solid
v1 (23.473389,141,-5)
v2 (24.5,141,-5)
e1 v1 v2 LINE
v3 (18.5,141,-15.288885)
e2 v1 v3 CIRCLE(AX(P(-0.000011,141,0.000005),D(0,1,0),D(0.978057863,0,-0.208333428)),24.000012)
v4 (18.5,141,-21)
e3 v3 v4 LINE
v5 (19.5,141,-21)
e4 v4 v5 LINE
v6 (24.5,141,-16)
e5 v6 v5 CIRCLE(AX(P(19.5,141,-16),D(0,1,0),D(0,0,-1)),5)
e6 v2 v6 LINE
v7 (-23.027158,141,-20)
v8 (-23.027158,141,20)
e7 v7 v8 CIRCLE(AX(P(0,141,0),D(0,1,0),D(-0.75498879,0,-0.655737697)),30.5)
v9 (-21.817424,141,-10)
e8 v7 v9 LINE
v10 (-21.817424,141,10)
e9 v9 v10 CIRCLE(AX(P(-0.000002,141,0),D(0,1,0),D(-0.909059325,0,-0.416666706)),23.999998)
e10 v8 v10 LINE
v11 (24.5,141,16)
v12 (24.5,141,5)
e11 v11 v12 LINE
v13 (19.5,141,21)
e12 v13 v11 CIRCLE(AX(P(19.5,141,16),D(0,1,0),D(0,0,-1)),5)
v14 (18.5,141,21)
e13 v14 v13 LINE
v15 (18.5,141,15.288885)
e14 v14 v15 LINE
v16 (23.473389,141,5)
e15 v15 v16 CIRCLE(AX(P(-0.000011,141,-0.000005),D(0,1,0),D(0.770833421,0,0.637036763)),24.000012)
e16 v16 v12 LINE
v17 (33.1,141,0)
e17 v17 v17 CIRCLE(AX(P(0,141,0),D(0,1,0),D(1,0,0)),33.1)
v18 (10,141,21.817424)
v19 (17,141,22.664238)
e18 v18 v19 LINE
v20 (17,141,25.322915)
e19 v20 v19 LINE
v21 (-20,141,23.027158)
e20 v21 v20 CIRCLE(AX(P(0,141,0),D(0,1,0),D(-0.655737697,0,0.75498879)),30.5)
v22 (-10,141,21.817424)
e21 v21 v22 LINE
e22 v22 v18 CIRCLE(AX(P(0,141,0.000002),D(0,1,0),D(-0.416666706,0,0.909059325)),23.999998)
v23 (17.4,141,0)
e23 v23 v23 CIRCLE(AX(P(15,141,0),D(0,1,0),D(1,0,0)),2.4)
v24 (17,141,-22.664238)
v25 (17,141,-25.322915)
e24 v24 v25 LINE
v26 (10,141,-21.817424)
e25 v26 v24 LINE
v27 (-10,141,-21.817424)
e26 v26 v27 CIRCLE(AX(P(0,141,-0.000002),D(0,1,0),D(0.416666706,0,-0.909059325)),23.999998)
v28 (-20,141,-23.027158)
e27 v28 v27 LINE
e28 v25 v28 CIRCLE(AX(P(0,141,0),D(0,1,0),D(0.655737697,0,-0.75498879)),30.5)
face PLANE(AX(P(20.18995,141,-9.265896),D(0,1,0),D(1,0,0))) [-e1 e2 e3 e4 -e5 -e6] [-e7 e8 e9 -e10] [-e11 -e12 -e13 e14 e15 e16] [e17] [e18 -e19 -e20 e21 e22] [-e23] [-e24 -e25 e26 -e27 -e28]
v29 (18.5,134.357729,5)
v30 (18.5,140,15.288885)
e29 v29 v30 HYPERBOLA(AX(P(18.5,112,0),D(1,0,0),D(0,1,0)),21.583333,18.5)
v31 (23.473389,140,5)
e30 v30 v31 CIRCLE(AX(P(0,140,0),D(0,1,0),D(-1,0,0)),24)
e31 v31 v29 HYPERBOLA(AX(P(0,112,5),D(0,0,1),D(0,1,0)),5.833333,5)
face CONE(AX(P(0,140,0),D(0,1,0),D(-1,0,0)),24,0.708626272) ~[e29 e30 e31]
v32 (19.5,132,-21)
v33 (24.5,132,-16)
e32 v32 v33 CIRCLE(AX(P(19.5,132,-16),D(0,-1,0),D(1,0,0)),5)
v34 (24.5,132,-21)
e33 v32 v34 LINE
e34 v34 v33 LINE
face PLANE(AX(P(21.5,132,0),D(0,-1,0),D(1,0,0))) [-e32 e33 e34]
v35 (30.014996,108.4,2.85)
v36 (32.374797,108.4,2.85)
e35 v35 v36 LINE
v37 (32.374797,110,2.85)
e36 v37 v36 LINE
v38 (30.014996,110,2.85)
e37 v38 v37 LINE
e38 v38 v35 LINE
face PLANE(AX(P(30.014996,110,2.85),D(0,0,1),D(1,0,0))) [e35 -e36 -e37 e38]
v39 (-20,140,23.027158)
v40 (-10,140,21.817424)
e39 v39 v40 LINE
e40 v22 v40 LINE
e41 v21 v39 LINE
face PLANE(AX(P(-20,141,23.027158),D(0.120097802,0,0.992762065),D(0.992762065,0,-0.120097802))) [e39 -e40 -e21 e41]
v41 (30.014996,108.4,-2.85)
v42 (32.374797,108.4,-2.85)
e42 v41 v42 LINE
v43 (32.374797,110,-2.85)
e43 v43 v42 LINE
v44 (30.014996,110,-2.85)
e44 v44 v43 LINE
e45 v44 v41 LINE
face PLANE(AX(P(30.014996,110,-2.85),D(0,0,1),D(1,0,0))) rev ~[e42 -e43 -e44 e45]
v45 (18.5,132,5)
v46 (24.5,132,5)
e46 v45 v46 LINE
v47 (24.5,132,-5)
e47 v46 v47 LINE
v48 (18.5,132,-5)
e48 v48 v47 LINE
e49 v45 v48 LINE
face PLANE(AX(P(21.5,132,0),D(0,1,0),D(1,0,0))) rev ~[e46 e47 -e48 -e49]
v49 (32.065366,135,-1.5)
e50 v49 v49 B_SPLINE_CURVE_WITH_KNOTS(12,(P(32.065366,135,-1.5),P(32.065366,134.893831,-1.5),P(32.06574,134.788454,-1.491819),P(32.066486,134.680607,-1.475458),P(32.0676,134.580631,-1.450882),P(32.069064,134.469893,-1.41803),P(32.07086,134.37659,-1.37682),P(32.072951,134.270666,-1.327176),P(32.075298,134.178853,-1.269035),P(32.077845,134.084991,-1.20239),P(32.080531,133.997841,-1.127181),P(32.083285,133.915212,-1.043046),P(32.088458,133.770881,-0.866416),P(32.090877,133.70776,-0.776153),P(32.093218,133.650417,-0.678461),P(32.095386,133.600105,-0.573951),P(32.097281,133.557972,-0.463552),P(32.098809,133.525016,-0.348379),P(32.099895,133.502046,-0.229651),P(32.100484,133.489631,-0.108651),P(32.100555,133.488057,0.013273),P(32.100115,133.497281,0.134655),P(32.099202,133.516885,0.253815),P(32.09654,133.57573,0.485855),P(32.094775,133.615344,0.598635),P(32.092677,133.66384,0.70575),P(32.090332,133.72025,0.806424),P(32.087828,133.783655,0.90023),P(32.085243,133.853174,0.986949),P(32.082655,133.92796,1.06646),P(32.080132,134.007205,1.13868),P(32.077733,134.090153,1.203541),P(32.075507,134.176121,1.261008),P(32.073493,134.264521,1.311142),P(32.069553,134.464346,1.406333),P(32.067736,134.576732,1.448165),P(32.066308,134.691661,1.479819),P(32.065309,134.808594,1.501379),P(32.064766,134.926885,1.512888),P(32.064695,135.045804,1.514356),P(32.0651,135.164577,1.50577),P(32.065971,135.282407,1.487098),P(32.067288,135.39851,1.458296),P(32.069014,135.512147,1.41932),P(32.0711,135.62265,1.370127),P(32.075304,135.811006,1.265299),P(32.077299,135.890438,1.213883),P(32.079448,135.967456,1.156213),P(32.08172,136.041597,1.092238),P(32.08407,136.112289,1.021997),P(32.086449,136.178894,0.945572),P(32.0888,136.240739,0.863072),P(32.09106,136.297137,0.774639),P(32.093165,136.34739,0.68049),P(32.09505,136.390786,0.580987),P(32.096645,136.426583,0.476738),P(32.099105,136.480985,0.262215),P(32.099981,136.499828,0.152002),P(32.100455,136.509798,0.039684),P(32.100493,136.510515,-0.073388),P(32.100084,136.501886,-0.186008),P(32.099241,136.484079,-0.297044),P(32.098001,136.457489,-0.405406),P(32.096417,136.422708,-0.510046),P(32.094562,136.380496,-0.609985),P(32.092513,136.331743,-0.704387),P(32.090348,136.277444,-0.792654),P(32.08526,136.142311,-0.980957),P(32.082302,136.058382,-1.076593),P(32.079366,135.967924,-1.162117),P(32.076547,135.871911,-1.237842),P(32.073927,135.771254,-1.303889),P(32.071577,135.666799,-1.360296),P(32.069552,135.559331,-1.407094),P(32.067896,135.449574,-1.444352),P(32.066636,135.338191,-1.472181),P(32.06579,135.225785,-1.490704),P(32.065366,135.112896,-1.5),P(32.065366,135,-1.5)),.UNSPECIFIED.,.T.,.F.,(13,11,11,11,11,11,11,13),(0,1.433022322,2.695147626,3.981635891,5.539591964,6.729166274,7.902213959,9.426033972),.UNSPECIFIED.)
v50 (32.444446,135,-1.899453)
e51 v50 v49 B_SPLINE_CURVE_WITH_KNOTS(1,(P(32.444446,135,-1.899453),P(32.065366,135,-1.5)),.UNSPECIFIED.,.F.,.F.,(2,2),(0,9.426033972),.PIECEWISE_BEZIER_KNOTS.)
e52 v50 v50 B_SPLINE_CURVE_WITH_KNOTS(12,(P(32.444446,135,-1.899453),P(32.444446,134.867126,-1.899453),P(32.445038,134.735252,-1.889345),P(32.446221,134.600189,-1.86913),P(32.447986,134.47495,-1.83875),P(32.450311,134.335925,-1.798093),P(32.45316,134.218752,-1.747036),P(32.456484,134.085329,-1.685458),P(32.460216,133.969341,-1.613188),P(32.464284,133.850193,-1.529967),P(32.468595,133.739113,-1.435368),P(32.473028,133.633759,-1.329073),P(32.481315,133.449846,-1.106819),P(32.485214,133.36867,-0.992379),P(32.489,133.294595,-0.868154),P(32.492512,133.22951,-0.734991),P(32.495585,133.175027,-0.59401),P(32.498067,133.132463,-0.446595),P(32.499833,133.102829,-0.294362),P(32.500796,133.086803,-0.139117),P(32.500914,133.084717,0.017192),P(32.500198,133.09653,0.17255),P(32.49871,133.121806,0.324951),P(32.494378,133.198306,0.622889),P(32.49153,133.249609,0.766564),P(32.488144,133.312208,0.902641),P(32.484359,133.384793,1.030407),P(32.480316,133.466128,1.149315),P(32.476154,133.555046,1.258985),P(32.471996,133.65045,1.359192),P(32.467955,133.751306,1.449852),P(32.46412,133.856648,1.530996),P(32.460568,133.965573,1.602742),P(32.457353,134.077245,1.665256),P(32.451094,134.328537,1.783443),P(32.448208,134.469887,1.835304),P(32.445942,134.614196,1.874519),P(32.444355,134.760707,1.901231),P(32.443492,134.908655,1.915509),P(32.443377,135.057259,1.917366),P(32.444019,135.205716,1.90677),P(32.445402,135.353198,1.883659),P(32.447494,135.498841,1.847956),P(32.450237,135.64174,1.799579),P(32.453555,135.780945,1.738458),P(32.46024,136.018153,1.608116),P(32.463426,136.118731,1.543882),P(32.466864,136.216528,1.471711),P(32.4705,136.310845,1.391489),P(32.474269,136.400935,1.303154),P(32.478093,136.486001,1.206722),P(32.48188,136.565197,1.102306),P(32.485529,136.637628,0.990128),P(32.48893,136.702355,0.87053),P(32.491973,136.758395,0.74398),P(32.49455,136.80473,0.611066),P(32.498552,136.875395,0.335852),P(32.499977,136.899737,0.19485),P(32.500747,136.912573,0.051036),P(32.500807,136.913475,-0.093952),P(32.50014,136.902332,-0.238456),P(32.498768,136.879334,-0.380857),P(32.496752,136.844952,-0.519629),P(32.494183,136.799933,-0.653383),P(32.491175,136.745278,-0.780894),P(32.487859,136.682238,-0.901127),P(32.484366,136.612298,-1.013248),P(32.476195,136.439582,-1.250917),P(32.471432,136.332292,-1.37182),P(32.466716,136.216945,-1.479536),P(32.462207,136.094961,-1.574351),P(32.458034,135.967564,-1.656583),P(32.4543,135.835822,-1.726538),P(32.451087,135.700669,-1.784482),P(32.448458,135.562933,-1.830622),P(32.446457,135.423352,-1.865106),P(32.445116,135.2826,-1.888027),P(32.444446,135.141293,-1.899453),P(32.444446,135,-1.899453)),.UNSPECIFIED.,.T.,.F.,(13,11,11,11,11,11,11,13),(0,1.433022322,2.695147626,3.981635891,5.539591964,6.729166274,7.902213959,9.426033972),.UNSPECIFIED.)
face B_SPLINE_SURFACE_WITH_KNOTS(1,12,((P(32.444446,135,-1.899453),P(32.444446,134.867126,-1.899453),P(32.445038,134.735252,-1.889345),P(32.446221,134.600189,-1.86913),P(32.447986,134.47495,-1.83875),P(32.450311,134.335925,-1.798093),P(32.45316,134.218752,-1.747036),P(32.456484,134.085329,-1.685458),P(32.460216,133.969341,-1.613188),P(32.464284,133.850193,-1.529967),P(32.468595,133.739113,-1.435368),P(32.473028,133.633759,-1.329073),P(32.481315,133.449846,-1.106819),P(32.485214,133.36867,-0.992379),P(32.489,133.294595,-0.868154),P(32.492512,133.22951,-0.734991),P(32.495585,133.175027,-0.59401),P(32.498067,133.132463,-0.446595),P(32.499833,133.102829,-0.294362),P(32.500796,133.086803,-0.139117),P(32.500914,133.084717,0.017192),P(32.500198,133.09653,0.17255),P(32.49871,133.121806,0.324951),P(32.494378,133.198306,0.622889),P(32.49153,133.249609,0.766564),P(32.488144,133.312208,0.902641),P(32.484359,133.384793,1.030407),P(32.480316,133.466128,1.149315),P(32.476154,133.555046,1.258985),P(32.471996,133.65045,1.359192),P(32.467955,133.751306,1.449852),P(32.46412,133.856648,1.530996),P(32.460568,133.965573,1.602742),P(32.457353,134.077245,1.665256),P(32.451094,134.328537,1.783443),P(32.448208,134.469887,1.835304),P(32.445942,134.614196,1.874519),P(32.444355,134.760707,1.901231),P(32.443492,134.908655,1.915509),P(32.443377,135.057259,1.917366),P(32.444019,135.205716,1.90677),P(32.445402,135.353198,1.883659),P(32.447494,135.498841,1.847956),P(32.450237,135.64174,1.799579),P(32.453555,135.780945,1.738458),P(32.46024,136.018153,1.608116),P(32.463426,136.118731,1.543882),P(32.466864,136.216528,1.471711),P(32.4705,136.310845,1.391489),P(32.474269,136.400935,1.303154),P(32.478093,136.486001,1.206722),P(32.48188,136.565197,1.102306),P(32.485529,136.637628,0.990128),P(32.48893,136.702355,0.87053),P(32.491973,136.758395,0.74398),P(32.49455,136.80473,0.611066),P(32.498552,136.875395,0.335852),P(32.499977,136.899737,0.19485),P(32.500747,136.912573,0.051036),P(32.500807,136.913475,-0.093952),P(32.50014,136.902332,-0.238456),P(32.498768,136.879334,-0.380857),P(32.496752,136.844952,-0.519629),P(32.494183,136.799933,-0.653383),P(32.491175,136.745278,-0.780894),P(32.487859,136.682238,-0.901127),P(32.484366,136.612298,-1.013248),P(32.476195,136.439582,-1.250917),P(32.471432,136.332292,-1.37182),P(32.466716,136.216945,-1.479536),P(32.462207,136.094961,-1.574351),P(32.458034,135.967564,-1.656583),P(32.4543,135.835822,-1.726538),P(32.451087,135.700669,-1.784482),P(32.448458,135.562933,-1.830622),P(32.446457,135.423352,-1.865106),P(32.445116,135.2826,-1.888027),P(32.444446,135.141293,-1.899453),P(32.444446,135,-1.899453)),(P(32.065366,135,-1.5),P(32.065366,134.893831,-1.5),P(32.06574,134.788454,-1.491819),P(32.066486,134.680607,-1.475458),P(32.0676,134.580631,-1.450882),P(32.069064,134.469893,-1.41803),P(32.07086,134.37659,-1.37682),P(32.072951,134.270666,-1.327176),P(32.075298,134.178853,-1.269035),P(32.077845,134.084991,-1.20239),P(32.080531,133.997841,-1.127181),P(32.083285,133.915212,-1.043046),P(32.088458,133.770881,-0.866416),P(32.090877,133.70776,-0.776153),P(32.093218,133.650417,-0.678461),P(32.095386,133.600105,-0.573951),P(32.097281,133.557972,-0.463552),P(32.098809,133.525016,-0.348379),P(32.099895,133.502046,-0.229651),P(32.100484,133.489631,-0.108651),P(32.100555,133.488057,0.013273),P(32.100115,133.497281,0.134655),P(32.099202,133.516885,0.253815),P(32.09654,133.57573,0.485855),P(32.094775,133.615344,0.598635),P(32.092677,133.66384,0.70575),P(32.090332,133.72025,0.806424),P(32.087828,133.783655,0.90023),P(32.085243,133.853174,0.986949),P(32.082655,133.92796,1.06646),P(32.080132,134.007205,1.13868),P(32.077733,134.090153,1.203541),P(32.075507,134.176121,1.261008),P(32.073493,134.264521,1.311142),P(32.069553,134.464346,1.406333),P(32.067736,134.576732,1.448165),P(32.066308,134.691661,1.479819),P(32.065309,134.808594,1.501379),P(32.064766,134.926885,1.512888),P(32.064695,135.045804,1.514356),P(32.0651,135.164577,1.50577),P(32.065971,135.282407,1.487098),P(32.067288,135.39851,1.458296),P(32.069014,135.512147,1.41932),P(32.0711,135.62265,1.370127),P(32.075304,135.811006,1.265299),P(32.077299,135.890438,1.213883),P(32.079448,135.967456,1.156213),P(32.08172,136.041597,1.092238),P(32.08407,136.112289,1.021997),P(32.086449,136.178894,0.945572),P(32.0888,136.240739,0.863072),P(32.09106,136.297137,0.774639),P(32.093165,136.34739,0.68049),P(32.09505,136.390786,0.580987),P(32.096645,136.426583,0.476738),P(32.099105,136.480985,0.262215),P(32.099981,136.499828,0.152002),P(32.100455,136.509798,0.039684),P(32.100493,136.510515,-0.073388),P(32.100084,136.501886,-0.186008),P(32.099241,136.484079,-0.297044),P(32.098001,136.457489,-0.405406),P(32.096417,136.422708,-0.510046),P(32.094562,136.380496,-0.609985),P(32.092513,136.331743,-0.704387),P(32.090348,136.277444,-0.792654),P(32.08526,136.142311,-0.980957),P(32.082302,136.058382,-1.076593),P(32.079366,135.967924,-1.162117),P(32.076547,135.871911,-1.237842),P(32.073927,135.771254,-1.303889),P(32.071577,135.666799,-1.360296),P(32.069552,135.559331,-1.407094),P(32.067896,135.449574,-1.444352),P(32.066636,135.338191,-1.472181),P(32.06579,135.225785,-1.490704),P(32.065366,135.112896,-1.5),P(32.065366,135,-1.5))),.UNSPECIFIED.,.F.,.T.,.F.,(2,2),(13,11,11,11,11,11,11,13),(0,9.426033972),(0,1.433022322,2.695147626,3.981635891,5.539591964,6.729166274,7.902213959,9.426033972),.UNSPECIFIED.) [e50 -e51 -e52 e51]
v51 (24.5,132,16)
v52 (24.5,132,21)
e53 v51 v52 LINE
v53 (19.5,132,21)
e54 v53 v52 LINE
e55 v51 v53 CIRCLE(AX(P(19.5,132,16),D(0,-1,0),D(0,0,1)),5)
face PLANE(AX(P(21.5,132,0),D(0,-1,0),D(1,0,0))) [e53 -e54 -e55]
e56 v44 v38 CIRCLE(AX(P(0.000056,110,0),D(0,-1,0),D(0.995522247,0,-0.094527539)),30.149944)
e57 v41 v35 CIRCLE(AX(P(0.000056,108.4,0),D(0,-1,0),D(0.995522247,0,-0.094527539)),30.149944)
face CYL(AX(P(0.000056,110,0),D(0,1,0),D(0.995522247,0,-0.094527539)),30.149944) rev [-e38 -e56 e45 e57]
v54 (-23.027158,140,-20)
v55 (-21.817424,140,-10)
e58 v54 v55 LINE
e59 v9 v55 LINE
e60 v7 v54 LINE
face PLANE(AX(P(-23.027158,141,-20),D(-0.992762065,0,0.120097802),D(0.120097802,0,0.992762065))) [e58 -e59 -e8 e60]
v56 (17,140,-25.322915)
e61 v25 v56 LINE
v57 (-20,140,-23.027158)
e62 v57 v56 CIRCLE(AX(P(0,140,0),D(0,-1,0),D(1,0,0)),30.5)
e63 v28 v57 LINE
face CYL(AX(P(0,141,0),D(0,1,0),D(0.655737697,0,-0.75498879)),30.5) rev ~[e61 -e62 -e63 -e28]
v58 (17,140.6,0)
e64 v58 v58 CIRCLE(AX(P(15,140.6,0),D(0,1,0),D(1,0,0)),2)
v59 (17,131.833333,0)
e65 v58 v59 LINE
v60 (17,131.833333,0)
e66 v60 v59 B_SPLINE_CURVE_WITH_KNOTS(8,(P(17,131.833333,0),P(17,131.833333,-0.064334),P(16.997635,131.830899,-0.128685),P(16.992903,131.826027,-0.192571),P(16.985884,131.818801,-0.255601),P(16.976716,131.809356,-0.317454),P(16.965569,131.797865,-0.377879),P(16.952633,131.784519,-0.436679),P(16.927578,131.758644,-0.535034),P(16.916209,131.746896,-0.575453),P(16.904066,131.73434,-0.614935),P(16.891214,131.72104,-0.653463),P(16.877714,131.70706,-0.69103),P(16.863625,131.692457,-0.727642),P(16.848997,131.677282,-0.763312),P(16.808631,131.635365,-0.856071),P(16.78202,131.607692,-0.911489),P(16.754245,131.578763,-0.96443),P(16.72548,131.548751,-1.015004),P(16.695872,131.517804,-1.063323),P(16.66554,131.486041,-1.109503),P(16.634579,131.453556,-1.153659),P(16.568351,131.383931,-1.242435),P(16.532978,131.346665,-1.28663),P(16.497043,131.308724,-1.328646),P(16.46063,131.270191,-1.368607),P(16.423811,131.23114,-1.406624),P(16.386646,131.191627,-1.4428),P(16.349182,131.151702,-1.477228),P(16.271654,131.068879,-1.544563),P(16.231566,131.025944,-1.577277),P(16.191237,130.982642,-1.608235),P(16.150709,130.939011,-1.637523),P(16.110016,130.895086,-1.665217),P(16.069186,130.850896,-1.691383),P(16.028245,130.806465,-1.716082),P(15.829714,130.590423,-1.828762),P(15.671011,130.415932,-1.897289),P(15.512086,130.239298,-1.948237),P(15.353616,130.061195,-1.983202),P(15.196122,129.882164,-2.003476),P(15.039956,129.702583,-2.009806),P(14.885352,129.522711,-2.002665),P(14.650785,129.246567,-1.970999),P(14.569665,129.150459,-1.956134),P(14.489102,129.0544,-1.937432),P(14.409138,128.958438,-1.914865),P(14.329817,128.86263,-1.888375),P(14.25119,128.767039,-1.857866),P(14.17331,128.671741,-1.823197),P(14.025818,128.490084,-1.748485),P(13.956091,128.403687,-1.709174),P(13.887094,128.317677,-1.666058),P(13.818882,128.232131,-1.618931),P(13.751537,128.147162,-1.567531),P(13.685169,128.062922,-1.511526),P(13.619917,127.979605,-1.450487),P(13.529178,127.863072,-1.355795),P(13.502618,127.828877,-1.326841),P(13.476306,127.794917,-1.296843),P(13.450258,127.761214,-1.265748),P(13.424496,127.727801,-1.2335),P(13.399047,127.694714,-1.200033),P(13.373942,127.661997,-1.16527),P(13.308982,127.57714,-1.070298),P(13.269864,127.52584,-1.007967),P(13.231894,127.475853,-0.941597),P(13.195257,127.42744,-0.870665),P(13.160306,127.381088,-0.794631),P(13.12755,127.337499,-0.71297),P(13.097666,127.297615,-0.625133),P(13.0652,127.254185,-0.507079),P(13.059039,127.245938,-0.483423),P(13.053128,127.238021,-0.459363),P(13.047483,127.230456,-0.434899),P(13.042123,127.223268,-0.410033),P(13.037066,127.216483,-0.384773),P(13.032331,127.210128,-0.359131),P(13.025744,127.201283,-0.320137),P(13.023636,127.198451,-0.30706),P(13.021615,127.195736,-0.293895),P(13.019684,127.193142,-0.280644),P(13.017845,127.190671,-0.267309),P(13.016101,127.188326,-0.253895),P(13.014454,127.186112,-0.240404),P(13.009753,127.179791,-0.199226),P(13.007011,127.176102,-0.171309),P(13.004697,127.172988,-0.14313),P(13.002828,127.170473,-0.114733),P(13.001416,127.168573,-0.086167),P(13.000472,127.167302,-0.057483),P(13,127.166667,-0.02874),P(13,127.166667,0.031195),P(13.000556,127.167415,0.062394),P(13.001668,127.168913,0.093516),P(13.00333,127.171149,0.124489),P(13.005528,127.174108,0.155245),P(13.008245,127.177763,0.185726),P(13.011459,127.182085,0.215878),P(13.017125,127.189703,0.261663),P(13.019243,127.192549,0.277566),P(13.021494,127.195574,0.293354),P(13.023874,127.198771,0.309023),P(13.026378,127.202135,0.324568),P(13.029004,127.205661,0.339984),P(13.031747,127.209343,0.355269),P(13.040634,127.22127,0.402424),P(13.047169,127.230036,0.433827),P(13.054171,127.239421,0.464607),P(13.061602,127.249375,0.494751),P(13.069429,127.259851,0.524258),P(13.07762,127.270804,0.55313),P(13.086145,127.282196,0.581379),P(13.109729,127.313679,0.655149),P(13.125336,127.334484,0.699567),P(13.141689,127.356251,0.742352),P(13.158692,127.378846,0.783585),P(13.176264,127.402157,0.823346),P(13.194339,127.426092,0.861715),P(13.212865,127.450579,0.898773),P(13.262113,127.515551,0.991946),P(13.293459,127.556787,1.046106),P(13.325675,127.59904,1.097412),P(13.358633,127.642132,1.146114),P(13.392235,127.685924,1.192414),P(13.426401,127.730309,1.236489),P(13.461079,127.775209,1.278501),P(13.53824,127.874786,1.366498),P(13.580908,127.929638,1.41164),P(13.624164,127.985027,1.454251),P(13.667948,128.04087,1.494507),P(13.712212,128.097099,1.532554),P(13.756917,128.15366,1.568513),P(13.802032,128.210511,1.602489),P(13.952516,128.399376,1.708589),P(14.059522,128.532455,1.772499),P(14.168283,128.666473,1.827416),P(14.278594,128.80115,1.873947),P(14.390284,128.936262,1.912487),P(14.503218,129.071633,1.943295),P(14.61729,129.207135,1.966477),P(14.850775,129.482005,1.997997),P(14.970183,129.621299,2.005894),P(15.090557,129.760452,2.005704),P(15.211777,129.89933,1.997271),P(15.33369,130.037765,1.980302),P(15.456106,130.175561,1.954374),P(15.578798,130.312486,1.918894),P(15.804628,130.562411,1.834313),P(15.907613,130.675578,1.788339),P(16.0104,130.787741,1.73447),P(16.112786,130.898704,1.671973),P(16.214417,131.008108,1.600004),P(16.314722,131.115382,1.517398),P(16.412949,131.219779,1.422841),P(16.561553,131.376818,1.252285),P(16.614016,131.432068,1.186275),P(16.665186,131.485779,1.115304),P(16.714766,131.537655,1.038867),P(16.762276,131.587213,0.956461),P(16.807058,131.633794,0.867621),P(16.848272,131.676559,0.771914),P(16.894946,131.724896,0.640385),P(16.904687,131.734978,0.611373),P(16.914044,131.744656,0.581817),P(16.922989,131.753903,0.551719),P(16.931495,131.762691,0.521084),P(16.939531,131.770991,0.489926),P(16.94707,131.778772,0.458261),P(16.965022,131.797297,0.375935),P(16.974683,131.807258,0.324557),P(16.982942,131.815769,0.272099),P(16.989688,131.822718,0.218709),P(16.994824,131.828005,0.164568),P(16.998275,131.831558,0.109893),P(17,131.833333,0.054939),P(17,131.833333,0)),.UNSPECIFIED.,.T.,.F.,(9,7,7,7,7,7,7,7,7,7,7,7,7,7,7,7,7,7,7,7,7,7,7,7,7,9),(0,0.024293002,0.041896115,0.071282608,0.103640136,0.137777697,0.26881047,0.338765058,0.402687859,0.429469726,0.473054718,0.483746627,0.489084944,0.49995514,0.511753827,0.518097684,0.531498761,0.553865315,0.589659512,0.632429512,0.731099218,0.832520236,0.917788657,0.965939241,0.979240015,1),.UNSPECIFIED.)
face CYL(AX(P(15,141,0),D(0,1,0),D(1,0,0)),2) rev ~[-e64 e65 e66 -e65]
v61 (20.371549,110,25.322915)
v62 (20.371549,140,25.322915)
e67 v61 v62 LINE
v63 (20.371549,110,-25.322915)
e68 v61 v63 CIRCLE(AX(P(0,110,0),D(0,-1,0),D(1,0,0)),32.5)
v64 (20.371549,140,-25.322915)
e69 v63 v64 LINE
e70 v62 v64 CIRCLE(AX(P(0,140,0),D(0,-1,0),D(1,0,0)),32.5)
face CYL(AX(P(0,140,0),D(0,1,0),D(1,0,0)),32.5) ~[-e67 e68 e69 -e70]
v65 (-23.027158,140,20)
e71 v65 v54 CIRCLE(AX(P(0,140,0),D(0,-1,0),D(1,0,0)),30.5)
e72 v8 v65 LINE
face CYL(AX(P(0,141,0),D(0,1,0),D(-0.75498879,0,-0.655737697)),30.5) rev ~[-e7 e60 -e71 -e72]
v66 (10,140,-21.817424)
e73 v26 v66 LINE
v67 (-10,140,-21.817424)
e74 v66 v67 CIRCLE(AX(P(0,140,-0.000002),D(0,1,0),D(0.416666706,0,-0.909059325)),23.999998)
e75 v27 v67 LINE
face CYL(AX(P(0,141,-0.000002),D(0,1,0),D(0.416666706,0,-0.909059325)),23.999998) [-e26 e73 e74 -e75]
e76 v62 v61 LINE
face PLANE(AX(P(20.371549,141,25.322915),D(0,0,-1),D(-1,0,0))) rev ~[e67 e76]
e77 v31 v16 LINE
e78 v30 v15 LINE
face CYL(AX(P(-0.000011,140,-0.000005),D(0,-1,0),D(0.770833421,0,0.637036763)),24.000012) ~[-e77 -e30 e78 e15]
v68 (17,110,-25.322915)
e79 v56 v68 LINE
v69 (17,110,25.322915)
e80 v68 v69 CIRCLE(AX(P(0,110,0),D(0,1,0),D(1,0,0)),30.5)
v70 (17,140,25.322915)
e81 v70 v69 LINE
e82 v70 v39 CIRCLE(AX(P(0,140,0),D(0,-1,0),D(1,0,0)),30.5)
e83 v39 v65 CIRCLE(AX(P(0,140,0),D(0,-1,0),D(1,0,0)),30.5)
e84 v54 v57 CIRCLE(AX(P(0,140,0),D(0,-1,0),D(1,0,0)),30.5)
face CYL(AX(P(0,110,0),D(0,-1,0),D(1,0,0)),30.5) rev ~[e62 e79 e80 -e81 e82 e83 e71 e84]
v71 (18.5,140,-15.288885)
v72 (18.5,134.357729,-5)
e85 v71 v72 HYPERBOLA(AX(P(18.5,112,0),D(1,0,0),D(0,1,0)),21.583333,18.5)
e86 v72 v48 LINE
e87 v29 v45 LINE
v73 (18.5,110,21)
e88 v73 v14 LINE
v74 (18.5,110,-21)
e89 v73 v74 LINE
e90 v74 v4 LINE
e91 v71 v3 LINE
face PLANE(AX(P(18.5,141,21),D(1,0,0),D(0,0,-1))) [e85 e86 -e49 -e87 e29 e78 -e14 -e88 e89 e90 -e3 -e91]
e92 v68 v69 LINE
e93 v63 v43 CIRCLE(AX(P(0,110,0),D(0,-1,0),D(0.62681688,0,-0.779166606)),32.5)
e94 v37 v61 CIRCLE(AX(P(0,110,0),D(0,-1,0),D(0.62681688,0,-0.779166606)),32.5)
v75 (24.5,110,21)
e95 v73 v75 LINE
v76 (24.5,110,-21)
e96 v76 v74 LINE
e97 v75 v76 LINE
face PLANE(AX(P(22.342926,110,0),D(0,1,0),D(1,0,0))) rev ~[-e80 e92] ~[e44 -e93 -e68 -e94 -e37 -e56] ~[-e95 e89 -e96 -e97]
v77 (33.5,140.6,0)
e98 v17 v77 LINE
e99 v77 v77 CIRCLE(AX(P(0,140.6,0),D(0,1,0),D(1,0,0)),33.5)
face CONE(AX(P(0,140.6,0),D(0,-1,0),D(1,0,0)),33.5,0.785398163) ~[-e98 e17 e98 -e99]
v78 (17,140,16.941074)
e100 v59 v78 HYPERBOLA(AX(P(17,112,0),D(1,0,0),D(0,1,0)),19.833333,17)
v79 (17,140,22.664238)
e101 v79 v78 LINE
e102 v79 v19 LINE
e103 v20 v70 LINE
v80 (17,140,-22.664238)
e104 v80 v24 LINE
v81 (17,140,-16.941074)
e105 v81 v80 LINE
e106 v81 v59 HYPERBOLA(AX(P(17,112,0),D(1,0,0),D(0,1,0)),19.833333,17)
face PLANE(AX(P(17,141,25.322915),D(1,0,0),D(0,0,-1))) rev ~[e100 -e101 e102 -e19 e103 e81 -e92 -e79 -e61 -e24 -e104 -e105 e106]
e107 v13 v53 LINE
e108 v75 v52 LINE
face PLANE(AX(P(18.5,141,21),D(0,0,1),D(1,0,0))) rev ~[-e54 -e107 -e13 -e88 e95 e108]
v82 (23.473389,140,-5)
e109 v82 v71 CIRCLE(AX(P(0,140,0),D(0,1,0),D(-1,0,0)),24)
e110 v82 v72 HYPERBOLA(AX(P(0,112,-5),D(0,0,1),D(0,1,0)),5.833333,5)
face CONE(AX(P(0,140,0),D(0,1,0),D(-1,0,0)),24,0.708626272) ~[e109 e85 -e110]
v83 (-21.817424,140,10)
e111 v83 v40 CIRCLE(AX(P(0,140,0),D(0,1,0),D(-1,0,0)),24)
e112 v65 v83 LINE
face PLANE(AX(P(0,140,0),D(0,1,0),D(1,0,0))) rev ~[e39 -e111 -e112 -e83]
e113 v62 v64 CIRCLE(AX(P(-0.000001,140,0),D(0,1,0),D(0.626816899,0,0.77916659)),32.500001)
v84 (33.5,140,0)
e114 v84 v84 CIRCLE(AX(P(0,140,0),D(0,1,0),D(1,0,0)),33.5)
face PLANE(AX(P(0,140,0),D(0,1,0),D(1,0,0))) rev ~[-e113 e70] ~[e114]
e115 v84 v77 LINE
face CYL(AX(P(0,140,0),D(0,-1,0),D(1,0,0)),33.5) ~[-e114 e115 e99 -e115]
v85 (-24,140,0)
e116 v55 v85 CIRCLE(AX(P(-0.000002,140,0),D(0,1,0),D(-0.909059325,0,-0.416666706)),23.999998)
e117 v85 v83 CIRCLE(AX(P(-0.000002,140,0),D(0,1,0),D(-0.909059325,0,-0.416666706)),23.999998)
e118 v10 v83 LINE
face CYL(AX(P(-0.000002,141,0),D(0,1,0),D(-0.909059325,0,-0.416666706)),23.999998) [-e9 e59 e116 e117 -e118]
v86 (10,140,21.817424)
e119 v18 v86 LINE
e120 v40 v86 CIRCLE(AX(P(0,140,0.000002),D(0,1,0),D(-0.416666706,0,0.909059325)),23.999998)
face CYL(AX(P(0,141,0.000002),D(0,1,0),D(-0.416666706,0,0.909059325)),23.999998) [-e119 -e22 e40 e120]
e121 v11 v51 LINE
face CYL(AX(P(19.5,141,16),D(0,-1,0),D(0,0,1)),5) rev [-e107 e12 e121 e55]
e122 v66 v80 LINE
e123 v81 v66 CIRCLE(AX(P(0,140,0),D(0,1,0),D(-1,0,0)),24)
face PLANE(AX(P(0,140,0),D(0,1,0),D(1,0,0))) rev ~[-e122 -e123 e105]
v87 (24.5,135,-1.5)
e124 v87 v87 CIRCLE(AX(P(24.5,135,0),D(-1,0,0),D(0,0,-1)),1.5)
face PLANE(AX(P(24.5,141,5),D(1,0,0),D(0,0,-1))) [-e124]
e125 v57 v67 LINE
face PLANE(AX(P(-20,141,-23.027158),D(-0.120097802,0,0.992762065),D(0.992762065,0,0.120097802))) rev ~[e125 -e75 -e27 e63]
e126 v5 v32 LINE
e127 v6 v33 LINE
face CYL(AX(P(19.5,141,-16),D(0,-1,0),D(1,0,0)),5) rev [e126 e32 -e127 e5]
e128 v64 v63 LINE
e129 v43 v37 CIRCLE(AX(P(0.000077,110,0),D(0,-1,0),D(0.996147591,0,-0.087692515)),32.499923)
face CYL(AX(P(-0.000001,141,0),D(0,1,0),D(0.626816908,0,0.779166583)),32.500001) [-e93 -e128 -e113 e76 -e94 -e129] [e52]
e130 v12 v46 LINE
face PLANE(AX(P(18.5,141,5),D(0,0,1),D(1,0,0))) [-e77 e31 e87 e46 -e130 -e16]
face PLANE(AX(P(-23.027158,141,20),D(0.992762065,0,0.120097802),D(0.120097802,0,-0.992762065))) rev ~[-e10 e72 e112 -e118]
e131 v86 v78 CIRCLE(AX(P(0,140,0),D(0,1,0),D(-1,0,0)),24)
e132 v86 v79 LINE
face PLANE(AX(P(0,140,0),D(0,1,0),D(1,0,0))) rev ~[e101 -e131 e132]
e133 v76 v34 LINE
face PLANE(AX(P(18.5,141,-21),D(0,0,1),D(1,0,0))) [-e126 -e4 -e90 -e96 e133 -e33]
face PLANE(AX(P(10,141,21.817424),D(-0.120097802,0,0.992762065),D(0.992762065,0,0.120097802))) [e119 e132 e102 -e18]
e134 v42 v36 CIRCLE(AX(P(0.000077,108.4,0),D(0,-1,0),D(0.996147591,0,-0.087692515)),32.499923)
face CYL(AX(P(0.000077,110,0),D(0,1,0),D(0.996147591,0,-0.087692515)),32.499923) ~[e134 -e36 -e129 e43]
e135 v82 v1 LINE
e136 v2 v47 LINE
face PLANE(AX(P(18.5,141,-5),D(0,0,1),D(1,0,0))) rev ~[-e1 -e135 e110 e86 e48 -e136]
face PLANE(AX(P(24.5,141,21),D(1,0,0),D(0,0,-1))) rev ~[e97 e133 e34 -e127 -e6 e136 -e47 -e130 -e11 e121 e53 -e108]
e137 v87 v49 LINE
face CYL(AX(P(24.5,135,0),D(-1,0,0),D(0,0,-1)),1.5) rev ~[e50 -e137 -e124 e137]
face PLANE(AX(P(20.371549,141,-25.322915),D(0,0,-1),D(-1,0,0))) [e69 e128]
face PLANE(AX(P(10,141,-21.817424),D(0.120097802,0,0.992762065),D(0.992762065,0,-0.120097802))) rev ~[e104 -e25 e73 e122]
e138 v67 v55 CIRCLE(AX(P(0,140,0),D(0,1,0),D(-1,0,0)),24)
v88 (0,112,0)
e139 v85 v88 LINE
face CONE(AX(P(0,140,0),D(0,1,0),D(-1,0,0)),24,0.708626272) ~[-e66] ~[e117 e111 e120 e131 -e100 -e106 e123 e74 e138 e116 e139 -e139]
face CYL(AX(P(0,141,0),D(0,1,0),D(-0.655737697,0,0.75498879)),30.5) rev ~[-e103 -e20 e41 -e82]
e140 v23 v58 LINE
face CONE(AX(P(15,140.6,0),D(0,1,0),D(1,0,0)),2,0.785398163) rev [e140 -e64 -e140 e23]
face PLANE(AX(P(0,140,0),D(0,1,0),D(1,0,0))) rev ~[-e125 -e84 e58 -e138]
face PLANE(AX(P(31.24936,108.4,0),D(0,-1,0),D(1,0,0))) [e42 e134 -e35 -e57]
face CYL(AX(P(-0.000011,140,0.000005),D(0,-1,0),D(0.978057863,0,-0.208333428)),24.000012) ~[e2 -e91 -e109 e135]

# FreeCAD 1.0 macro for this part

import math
import FreeCAD as App
import Part
import Sketcher
from FreeCAD import Vector
Q = App.Units.Quantity


def edges_at(feature, points):
    """Names of the edges that pass closest to the given points."""
    edges = feature.Shape.Edges
    near = lambda p: min(range(len(edges)), key=lambda i: edges[i].distToShape(Part.Vertex(*p))[0])
    return sorted({f"Edge{near(p) + 1}" for p in points})

doc = App.newDocument("Part")
params = doc.addObject("Spreadsheet::Sheet", "Params")
for row, (alias, value) in enumerate([
    ("sketch1_diameter", "65 mm"),
    ("pad1_length", "30 mm"),
    ("sketch2_diameter", "61 mm"),
    ("sketch3_diameter", "67 mm"),
    ("pad2_length", "1 mm"),
    ("sketch4_width", "20 mm"),
    ("sketch4_height", "27.5 mm"),
    ("revolution_angle", "360 deg"),
    ("sketch5_radius", "30.5 mm"),
    ("sketch6_radius", "32.500001 mm"),
    ("pad3_length", "31 mm"),
    ("sketch7_width", "6 mm"),
    ("sketch7_height", "42 mm"),
    ("sketch8_diameter", "3 mm"),
    ("pad4_length", "1.6 mm"),
    ("fillet_radius", "5 mm"),
    ("sketch10_width", "6 mm"),
    ("sketch10_height", "10 mm"),
    ("pad5_length", "9 mm"),
    ("sketch11_width", "24 mm"),
    ("sketch11_height", "28 mm"),
    ("revolution2_angle", "360 deg"),
    ("sketch12_width", "6 mm"),
    ("sketch12_height", "42 mm"),
    ("pocket5_length", "22 mm"),
    ("chamfer_size", "0.4 mm"),
    ("sketch13_diameter", "4 mm"),
    ("chamfer2_size", "0.4 mm"),
    ("pad6_length", "1 mm"),
    ("pad7_length", "1 mm"),
], start=1):
    params.set(f"A{row}", alias)
    params.set(f"B{row}", "=" + value)
    params.setAlias(f"B{row}", alias)

body = doc.addObject("PartDesign::Body", "Body")

# Sketch on XZ plane
sketch1 = body.newObject("Sketcher::SketchObject", "Sketch")
sketch1.AttachmentSupport = (doc.getObject("XZ_Plane"), [""])
sketch1.MapMode = "FlatFace"
sketch1.addGeometry(Part.Circle(Vector(0, 0, 0), Vector(0, 0, 1), 32), False)
sketch1.addConstraint([
    Sketcher.Constraint("Coincident", 0, 3, -1, 1),
    Sketcher.Constraint("Diameter", 0, Q("65 mm")),
])
sketch1.setExpression("Constraints[1]", "Params.sketch1_diameter")
pad1 = body.newObject("PartDesign::Pad", "Pad")
pad1.Profile = sketch1
pad1.setExpression("Length", "Params.pad1_length")

# Sketch on XZ plane
sketch2 = body.newObject("Sketcher::SketchObject", "Sketch001")
sketch2.AttachmentSupport = (doc.getObject("XZ_Plane"), [""])
sketch2.MapMode = "FlatFace"
sketch2.AttachmentOffset = App.Placement(Vector(0, 0, 30), App.Rotation())
sketch2.addGeometry(Part.Circle(Vector(0, 0, 0), Vector(0, 0, 1), 30), False)
sketch2.addConstraint([
    Sketcher.Constraint("Coincident", 0, 3, -1, 1),
    Sketcher.Constraint("Diameter", 0, Q("61 mm")),
])
sketch2.setExpression("Constraints[1]", "Params.sketch2_diameter")
pocket1 = body.newObject("PartDesign::Pocket", "Pocket")
pocket1.Profile = sketch2
pocket1.Type = "ThroughAll"

# Sketch on XZ plane
sketch3 = body.newObject("Sketcher::SketchObject", "Sketch002")
sketch3.AttachmentSupport = (doc.getObject("XZ_Plane"), [""])
sketch3.MapMode = "FlatFace"
sketch3.addGeometry(Part.Circle(Vector(0, 0, 0), Vector(0, 0, 1), 34), False)
sketch3.addConstraint([
    Sketcher.Constraint("Coincident", 0, 3, -1, 1),
    Sketcher.Constraint("Diameter", 0, Q("67 mm")),
])
sketch3.setExpression("Constraints[1]", "Params.sketch3_diameter")
pad2 = body.newObject("PartDesign::Pad", "Pad001")
pad2.Profile = sketch3
pad2.setExpression("Length", "Params.pad2_length")
pad2.Reversed = True

# Sketch on XY plane
sketch4 = body.newObject("Sketcher::SketchObject", "Sketch003")
sketch4.AttachmentSupport = (doc.getObject("XY_Plane"), [""])
sketch4.MapMode = "FlatFace"
sketch4.addGeometry([
    Part.LineSegment(Vector(-20, 0, 0), Vector(0, -28, 0)),
    Part.LineSegment(Vector(0, -28, 0), Vector(0, 0, 0)),
    Part.LineSegment(Vector(0, 0, 0), Vector(-20, 0, 0)),
], False)
sketch4.addConstraint([
    Sketcher.Constraint("Coincident", 0, 2, 1, 1),
    Sketcher.Constraint("Coincident", 1, 2, 2, 1),
    Sketcher.Constraint("Coincident", 2, 2, 0, 1),
    Sketcher.Constraint("Vertical", 1),
    Sketcher.Constraint("Horizontal", 2),
    Sketcher.Constraint("Coincident", 1, 2, -1, 1),
    Sketcher.Constraint("DistanceX", 2, 2, 2, 1, Q("20 mm")),
    Sketcher.Constraint("DistanceY", 1, 1, 1, 2, Q("27.5 mm")),
])
sketch4.setExpression("Constraints[6]", "Params.sketch4_width")
sketch4.setExpression("Constraints[7]", "Params.sketch4_height")
revolution = body.newObject("PartDesign::Revolution", "Revolution")
revolution.Profile = sketch4
revolution.ReferenceAxis = (sketch4, ["V_Axis"])
revolution.setExpression("Angle", "Params.revolution_angle")

# Sketch on XZ plane
sketch5 = body.newObject("Sketcher::SketchObject", "Sketch004")
sketch5.AttachmentSupport = (doc.getObject("XZ_Plane"), [""])
sketch5.MapMode = "FlatFace"
sketch5.AttachmentOffset = App.Placement(Vector(0, 0, -1), App.Rotation())
sketch5.addGeometry([
    Part.ArcOfCircle(Part.Circle(Vector(0, 0, 0), Vector(0, 0, 1), 31), math.radians(139), math.radians(221)),  # 0
    Part.LineSegment(Vector(-23, 20, 0), Vector(-22, 10, 0)),  # 1
    Part.ArcOfCircle(Part.Circle(Vector(0, 0, 0), Vector(0, 0, 1), 24), math.radians(155), math.radians(205)),  # 2
    Part.LineSegment(Vector(-22, -10, 0), Vector(-23, -20, 0)),  # 3
    Part.ArcOfCircle(Part.Circle(Vector(0, 0, 0), Vector(0, 0, 1), 31), math.radians(49), math.radians(131)),  # 4
    Part.LineSegment(Vector(20, 23, 0), Vector(10, 22, 0)),  # 5
    Part.ArcOfCircle(Part.Circle(Vector(0, 0, 0), Vector(0, 0, 1), 24), math.radians(65), math.radians(115)),  # 6
    Part.LineSegment(Vector(-10, 22, 0), Vector(-20, 23, 0)),  # 7
    Part.ArcOfCircle(Part.Circle(Vector(0, 0, 0), Vector(0, 0, 1), 31), math.radians(-131), math.radians(-49)),  # 8
    Part.LineSegment(Vector(-20, -23, 0), Vector(-10, -22, 0)),  # 9
    Part.ArcOfCircle(Part.Circle(Vector(0, 0, 0), Vector(0, 0, 1), 24), math.radians(-115), math.radians(-65)),  # 10
    Part.LineSegment(Vector(10, -22, 0), Vector(20, -23, 0)),  # 11
], False)
sketch5.addConstraint([
    Sketcher.Constraint("Coincident", 0, 1, 1, 1),
    Sketcher.Constraint("Coincident", 1, 2, 2, 1),
    Sketcher.Constraint("Coincident", 2, 2, 3, 1),
    Sketcher.Constraint("Coincident", 3, 2, 0, 2),
    Sketcher.Constraint("Coincident", 4, 1, 5, 1),
    Sketcher.Constraint("Coincident", 5, 2, 6, 1),
    Sketcher.Constraint("Coincident", 6, 2, 7, 1),
    Sketcher.Constraint("Coincident", 7, 2, 4, 2),
    Sketcher.Constraint("Coincident", 8, 1, 9, 1),
    Sketcher.Constraint("Coincident", 9, 2, 10, 1),
    Sketcher.Constraint("Coincident", 10, 2, 11, 1),
    Sketcher.Constraint("Coincident", 11, 2, 8, 2),
    Sketcher.Constraint("Coincident", 0, 3, -1, 1),
    Sketcher.Constraint("Coincident", 2, 3, -1, 1),
    Sketcher.Constraint("Coincident", 4, 3, -1, 1),
    Sketcher.Constraint("Coincident", 6, 3, -1, 1),
    Sketcher.Constraint("Coincident", 8, 3, -1, 1),
    Sketcher.Constraint("Coincident", 10, 3, -1, 1),
    Sketcher.Constraint("Equal", 0, 4),
    Sketcher.Constraint("Equal", 2, 6),
    Sketcher.Constraint("Equal", 4, 8),
    Sketcher.Constraint("Equal", 6, 10),
    Sketcher.Constraint("Perpendicular", 1, 5),
    Sketcher.Constraint("Perpendicular", 3, 7),
    Sketcher.Constraint("Parallel", 5, 9),
    Sketcher.Constraint("Parallel", 7, 11),
    Sketcher.Constraint("Horizontal", 5, 2, 6, 2),
    Sketcher.Constraint("Horizontal", 4, 1, 7, 2),
    Sketcher.Constraint("Horizontal", 9, 2, 10, 2),
    Sketcher.Constraint("Vertical", 1, 2, 2, 2),
    Sketcher.Constraint("Vertical", 7, 2, 8, 1),
    Sketcher.Constraint("Equal", 3, 5),
    Sketcher.Constraint("Radius", 0, Q("30.5 mm")),
    Sketcher.Constraint("DistanceY", -1, 1, 0, 1, Q("20 mm")),
    Sketcher.Constraint("DistanceY", -1, 1, 1, 2, Q("10 mm")),
    Sketcher.Constraint("Radius", 2, Q("23.999998 mm")),
])
sketch5.setExpression("Constraints[32]", "Params.sketch5_radius")
pocket2 = body.newObject("PartDesign::Pocket", "Pocket001")
pocket2.Profile = sketch5
pocket2.Type = "ThroughAll"
pocket2.Reversed = True

# Sketch on XZ plane
sketch6 = body.newObject("Sketcher::SketchObject", "Sketch005")
sketch6.AttachmentSupport = (doc.getObject("XZ_Plane"), [""])
sketch6.MapMode = "FlatFace"
sketch6.AttachmentOffset = App.Placement(Vector(0, 0, -1), App.Rotation())
sketch6.addGeometry([
    Part.ArcOfCircle(Part.Circle(Vector(0, 0, 0), Vector(0, 0, 1), 32.5), math.radians(-51), math.radians(51)),
    Part.LineSegment(Vector(20.4, -25.3, 0), Vector(17, -25.3, 0)),
    Part.LineSegment(Vector(17, -25.3, 0), Vector(17, 25.3, 0)),
    Part.LineSegment(Vector(17, 25.3, 0), Vector(20.4, 25.3, 0)),
], False)
sketch6.addConstraint([
    Sketcher.Constraint("Coincident", 0, 1, 1, 1),
    Sketcher.Constraint("Coincident", 1, 2, 2, 1),
    Sketcher.Constraint("Coincident", 2, 2, 3, 1),
    Sketcher.Constraint("Coincident", 3, 2, 0, 2),
    Sketcher.Constraint("Horizontal", 1),
    Sketcher.Constraint("Vertical", 2),
    Sketcher.Constraint("Horizontal", 3),
    Sketcher.Constraint("Coincident", 0, 3, -1, 1),
    Sketcher.Constraint("Vertical", 0, 1, 3, 2),
    Sketcher.Constraint("Radius", 0, Q("32.500001 mm")),
    Sketcher.Constraint("DistanceX", -1, 1, 1, 2, Q("17 mm")),
    Sketcher.Constraint("DistanceX", 1, 2, 1, 1, Q("3.371549 mm")),
])
sketch6.setExpression("Constraints[9]", "Params.sketch6_radius")
pad3 = body.newObject("PartDesign::Pad", "Pad002")
pad3.Profile = sketch6
pad3.setExpression("Length", "Params.pad3_length")

# Sketch on XZ plane
sketch7 = body.newObject("Sketcher::SketchObject", "Sketch006")
sketch7.AttachmentSupport = (doc.getObject("XZ_Plane"), [""])
sketch7.MapMode = "FlatFace"
sketch7.AttachmentOffset = App.Placement(Vector(0, 0, -1), App.Rotation())
sketch7.addGeometry([
    Part.LineSegment(Vector(18, -21, 0), Vector(18, 21, 0)),
    Part.LineSegment(Vector(18, 21, 0), Vector(24, 21, 0)),
    Part.LineSegment(Vector(24, 21, 0), Vector(24, -21, 0)),
    Part.LineSegment(Vector(24, -21, 0), Vector(18, -21, 0)),
], False)
sketch7.addConstraint([
    Sketcher.Constraint("Coincident", 0, 2, 1, 1),
    Sketcher.Constraint("Coincident", 1, 2, 2, 1),
    Sketcher.Constraint("Coincident", 2, 2, 3, 1),
    Sketcher.Constraint("Coincident", 3, 2, 0, 1),
    Sketcher.Constraint("Vertical", 0),
    Sketcher.Constraint("Horizontal", 1),
    Sketcher.Constraint("Vertical", 2),
    Sketcher.Constraint("Horizontal", 3),
    Sketcher.Constraint("DistanceX", 1, 1, 1, 2, Q("6 mm")),
    Sketcher.Constraint("DistanceY", 0, 1, 0, 2, Q("42 mm")),
    Sketcher.Constraint("DistanceY", -1, 1, 0, 2, Q("21 mm")),
    Sketcher.Constraint("DistanceX", -1, 1, 0, 2, Q("18.5 mm")),
])
sketch7.setExpression("Constraints[8]", "Params.sketch7_width")
sketch7.setExpression("Constraints[9]", "Params.sketch7_height")
pocket3 = body.newObject("PartDesign::Pocket", "Pocket002")
pocket3.Profile = sketch7
pocket3.Type = "ThroughAll"
pocket3.Reversed = True

# Sketch on YZ plane
sketch8 = body.newObject("Sketcher::SketchObject", "Sketch007")
sketch8.AttachmentSupport = (doc.getObject("YZ_Plane"), [""])
sketch8.MapMode = "FlatFace"
sketch8.AttachmentOffset = App.Placement(Vector(0, 0, 24.5), App.Rotation())
sketch8.addGeometry(Part.Circle(Vector(-5, 0, 0), Vector(0, 0, 1), 1.5), False)
sketch8.addConstraint([
    Sketcher.Constraint("PointOnObject", 0, 3, -1),
    Sketcher.Constraint("Diameter", 0, Q("3 mm")),
    Sketcher.Constraint("DistanceX", 0, 3, -1, 1, Q("5 mm")),
])
sketch8.setExpression("Constraints[1]", "Params.sketch8_diameter")
pocket4 = body.newObject("PartDesign::Pocket", "Pocket003")
pocket4.Profile = sketch8
pocket4.Type = "ThroughAll"
pocket4.Reversed = True

# Sketch on XZ plane
sketch9 = body.newObject("Sketcher::SketchObject", "Sketch008")
sketch9.AttachmentSupport = (doc.getObject("XZ_Plane"), [""])
sketch9.MapMode = "FlatFace"
sketch9.AttachmentOffset = App.Placement(Vector(0, 0, 30), App.Rotation())
sketch9.addGeometry([
    Part.ArcOfCircle(Part.Circle(Vector(0, 0, 0), Vector(0, 0, 1), 32.5), math.radians(-5.03), math.radians(5.03)),
    Part.LineSegment(Vector(32.4, 2.9, 0), Vector(30, 2.9, 0)),
    Part.ArcOfCircle(Part.Circle(Vector(0, 0, 0), Vector(0, 0, 1), 30.1), math.radians(-5.42), math.radians(5.42)),
    Part.LineSegment(Vector(30, -2.9, 0), Vector(32.4, -2.9, 0)),
], False)
sketch9.addConstraint([
    Sketcher.Constraint("Coincident", 0, 2, 1, 1),
    Sketcher.Constraint("Coincident", 1, 2, 2, 2),
    Sketcher.Constraint("Coincident", 2, 1, 3, 1),
    Sketcher.Constraint("Coincident", 3, 2, 0, 1),
    Sketcher.Constraint("Horizontal", 1),
    Sketcher.Constraint("Horizontal", 3),
    Sketcher.Constraint("Symmetric", 1, 2, 2, 1, -1),
    Sketcher.Constraint("PointOnObject", 0, 3, -1),
    Sketcher.Constraint("DistanceY", 2, 1, 1, 2, Q("5.7 mm")),
    Sketcher.Constraint("DistanceX", 1, 2, 1, 1, Q("2.359801 mm")),
    Sketcher.Constraint("Radius", 0, Q("32.499923 mm")),
    Sketcher.Constraint("Radius", 2, Q("30.149944 mm")),
    Sketcher.Constraint("DistanceX", -1, 1, 0, 2, Q("32.374797 mm")),
])
pad4 = body.newObject("PartDesign::Pad", "Pad003")
pad4.Profile = sketch9
pad4.setExpression("Length", "Params.pad4_length")
doc.recompute()

fillet = body.newObject("PartDesign::Fillet", "Fillet")
fillet.Base = (pad4, edges_at(pad4, [(24.5, -14.5, 21), (24.5, -14.5, -21)]))
fillet.setExpression("Radius", "Params.fillet_radius")

# Sketch on XZ plane
sketch10 = body.newObject("Sketcher::SketchObject", "Sketch009")
sketch10.AttachmentSupport = (doc.getObject("XZ_Plane"), [""])
sketch10.MapMode = "FlatFace"
sketch10.AttachmentOffset = App.Placement(Vector(0, 0, -1), App.Rotation())
sketch10.addGeometry([
    Part.LineSegment(Vector(18, -5, 0), Vector(18, 5, 0)),
    Part.LineSegment(Vector(18, 5, 0), Vector(24, 5, 0)),
    Part.LineSegment(Vector(24, 5, 0), Vector(24, -5, 0)),
    Part.LineSegment(Vector(24, -5, 0), Vector(18, -5, 0)),
], False)
sketch10.addConstraint([
    Sketcher.Constraint("Coincident", 0, 2, 1, 1),
    Sketcher.Constraint("Coincident", 1, 2, 2, 1),
    Sketcher.Constraint("Coincident", 2, 2, 3, 1),
    Sketcher.Constraint("Coincident", 3, 2, 0, 1),
    Sketcher.Constraint("Vertical", 0),
    Sketcher.Constraint("Horizontal", 1),
    Sketcher.Constraint("Vertical", 2),
    Sketcher.Constraint("Horizontal", 3),
    Sketcher.Constraint("DistanceX", 1, 1, 1, 2, Q("6 mm")),
    Sketcher.Constraint("DistanceY", 0, 1, 0, 2, Q("10 mm")),
    Sketcher.Constraint("DistanceY", -1, 1, 0, 2, Q("5 mm")),
    Sketcher.Constraint("DistanceX", -1, 1, 0, 2, Q("18.5 mm")),
])
sketch10.setExpression("Constraints[8]", "Params.sketch10_width")
sketch10.setExpression("Constraints[9]", "Params.sketch10_height")
pad5 = body.newObject("PartDesign::Pad", "Pad004")
pad5.Profile = sketch10
pad5.setExpression("Length", "Params.pad5_length")

# Sketch on XY plane
sketch11 = body.newObject("Sketcher::SketchObject", "Sketch010")
sketch11.AttachmentSupport = (doc.getObject("XY_Plane"), [""])
sketch11.MapMode = "FlatFace"
sketch11.addGeometry([
    Part.LineSegment(Vector(-24, 0, 0), Vector(0, -28, 0)),
    Part.LineSegment(Vector(0, -28, 0), Vector(0, 0, 0)),
    Part.LineSegment(Vector(0, 0, 0), Vector(-24, 0, 0)),
], False)
sketch11.addConstraint([
    Sketcher.Constraint("Coincident", 0, 2, 1, 1),
    Sketcher.Constraint("Coincident", 1, 2, 2, 1),
    Sketcher.Constraint("Coincident", 2, 2, 0, 1),
    Sketcher.Constraint("Vertical", 1),
    Sketcher.Constraint("Horizontal", 2),
    Sketcher.Constraint("Coincident", 1, 2, -1, 1),
    Sketcher.Constraint("DistanceX", 2, 2, 2, 1, Q("24 mm")),
    Sketcher.Constraint("DistanceY", 1, 1, 1, 2, Q("28 mm")),
])
sketch11.setExpression("Constraints[6]", "Params.sketch11_width")
sketch11.setExpression("Constraints[7]", "Params.sketch11_height")
revolution2 = body.newObject("PartDesign::Revolution", "Revolution001")
revolution2.Profile = sketch11
revolution2.ReferenceAxis = (sketch11, ["V_Axis"])
revolution2.setExpression("Angle", "Params.revolution2_angle")

# Sketch on XZ plane
sketch12 = body.newObject("Sketcher::SketchObject", "Sketch011")
sketch12.AttachmentSupport = (doc.getObject("XZ_Plane"), [""])
sketch12.MapMode = "FlatFace"
sketch12.AttachmentOffset = App.Placement(Vector(0, 0, 30), App.Rotation())
sketch12.addGeometry([
    Part.LineSegment(Vector(18, 21, 0), Vector(18, -21, 0)),
    Part.LineSegment(Vector(18, -21, 0), Vector(24, -21, 0)),
    Part.LineSegment(Vector(24, -21, 0), Vector(24, 21, 0)),
    Part.LineSegment(Vector(24, 21, 0), Vector(18, 21, 0)),
], False)
sketch12.addConstraint([
    Sketcher.Constraint("Coincident", 0, 2, 1, 1),
    Sketcher.Constraint("Coincident", 1, 2, 2, 1),
    Sketcher.Constraint("Coincident", 2, 2, 3, 1),
    Sketcher.Constraint("Coincident", 3, 2, 0, 1),
    Sketcher.Constraint("Vertical", 0),
    Sketcher.Constraint("Horizontal", 1),
    Sketcher.Constraint("Vertical", 2),
    Sketcher.Constraint("Horizontal", 3),
    Sketcher.Constraint("DistanceX", 1, 1, 1, 2, Q("6 mm")),
    Sketcher.Constraint("DistanceY", 0, 2, 0, 1, Q("42 mm")),
    Sketcher.Constraint("DistanceY", 0, 2, -1, 1, Q("21 mm")),
    Sketcher.Constraint("DistanceX", -1, 1, 0, 2, Q("18.5 mm")),
])
sketch12.setExpression("Constraints[8]", "Params.sketch12_width")
sketch12.setExpression("Constraints[9]", "Params.sketch12_height")
pocket5 = body.newObject("PartDesign::Pocket", "Pocket004")
pocket5.Profile = sketch12
pocket5.setExpression("Length", "Params.pocket5_length")
doc.recompute()

chamfer = body.newObject("PartDesign::Chamfer", "Chamfer")
chamfer.Base = (pocket5, edges_at(pocket5, [(-33.5, 1, 0), (32.465, -5, 1.5)]))
chamfer.setExpression("Size", "Params.chamfer_size")

# Sketch on XZ plane
sketch13 = body.newObject("Sketcher::SketchObject", "Sketch012")
sketch13.AttachmentSupport = (doc.getObject("XZ_Plane"), [""])
sketch13.MapMode = "FlatFace"
sketch13.AttachmentOffset = App.Placement(Vector(0, 0, -1), App.Rotation())
sketch13.addGeometry(Part.Circle(Vector(15, 0, 0), Vector(0, 0, 1), 2), False)
sketch13.addConstraint([
    Sketcher.Constraint("PointOnObject", 0, 3, -1),
    Sketcher.Constraint("Diameter", 0, Q("4 mm")),
    Sketcher.Constraint("DistanceX", -1, 1, 0, 3, Q("15 mm")),
])
sketch13.setExpression("Constraints[1]", "Params.sketch13_diameter")
pocket6 = body.newObject("PartDesign::Pocket", "Pocket005")
pocket6.Profile = sketch13
pocket6.Type = "ThroughAll"
pocket6.Reversed = True
doc.recompute()

chamfer2 = body.newObject("PartDesign::Chamfer", "Chamfer001")
chamfer2.Base = (pocket6, edges_at(pocket6, [(13, 1, 0)]))
chamfer2.setExpression("Size", "Params.chamfer2_size")

# Sketch on XZ plane
sketch14 = body.newObject("Sketcher::SketchObject", "Sketch013")
sketch14.AttachmentSupport = (doc.getObject("XZ_Plane"), [""])
sketch14.MapMode = "FlatFace"
sketch14.addGeometry([
    Part.ArcOfCircle(Part.Circle(Vector(0, 0, 0), Vector(0, 0, 1), 24), math.radians(12), math.radians(40)),
    Part.LineSegment(Vector(23.5, 5, 0), Vector(18.5, 5, 0)),
    Part.LineSegment(Vector(18.5, 5, 0), Vector(18.5, 15.3, 0)),
], False)
sketch14.addConstraint([
    Sketcher.Constraint("Coincident", 0, 1, 1, 1),
    Sketcher.Constraint("Coincident", 1, 2, 2, 1),
    Sketcher.Constraint("Coincident", 2, 2, 0, 2),
    Sketcher.Constraint("Horizontal", 1),
    Sketcher.Constraint("Vertical", 2),
    Sketcher.Constraint("DistanceY", -1, 1, 0, 1, Q("5 mm")),
    Sketcher.Constraint("DistanceX", -1, 1, 1, 2, Q("18.5 mm")),
    Sketcher.Constraint("Radius", 0, Q("24.000012 mm")),
    Sketcher.Constraint("DistanceX", 1, 2, 1, 1, Q("4.973389 mm")),
    Sketcher.Constraint("DistanceX", 0, 3, 0, 1, Q("23.4734 mm")),
])
pad6 = body.newObject("PartDesign::Pad", "Pad005")
pad6.Profile = sketch14
pad6.setExpression("Length", "Params.pad6_length")
pad6.Reversed = True

# Sketch on XZ plane
sketch15 = body.newObject("Sketcher::SketchObject", "Sketch014")
sketch15.AttachmentSupport = (doc.getObject("XZ_Plane"), [""])
sketch15.MapMode = "FlatFace"
sketch15.addGeometry([
    Part.LineSegment(Vector(18.5, -15.3, 0), Vector(18.5, -5, 0)),
    Part.LineSegment(Vector(18.5, -5, 0), Vector(23.5, -5, 0)),
    Part.ArcOfCircle(Part.Circle(Vector(0, 0, 0), Vector(0, 0, 1), 24), math.radians(-40), math.radians(-12)),
], False)
sketch15.addConstraint([
    Sketcher.Constraint("Coincident", 0, 2, 1, 1),
    Sketcher.Constraint("Coincident", 1, 2, 2, 2),
    Sketcher.Constraint("Coincident", 2, 1, 0, 1),
    Sketcher.Constraint("Vertical", 0),
    Sketcher.Constraint("Horizontal", 1),
    Sketcher.Constraint("DistanceY", 0, 2, -1, 1, Q("5 mm")),
    Sketcher.Constraint("DistanceX", -1, 1, 0, 2, Q("18.5 mm")),
    Sketcher.Constraint("Radius", 2, Q("24.000012 mm")),
    Sketcher.Constraint("DistanceX", 1, 1, 1, 2, Q("4.973389 mm")),
    Sketcher.Constraint("DistanceX", 2, 3, 1, 2, Q("23.4734 mm")),
])
pad7 = body.newObject("PartDesign::Pad", "Pad006")
pad7.Profile = sketch15
pad7.setExpression("Length", "Params.pad7_length")
pad7.Reversed = True
body2 = doc.addObject("PartDesign::Body", "Body001")
doc.recompute()

body.Placement = App.Placement(Vector(0, 140, 0), App.Rotation(Vector(0, 0, 1), 0))
boolean = body2.newObject("PartDesign::Boolean", "Boolean")
boolean.Type = "Fuse"
boolean.addObjects([body])

doc.recompute()
